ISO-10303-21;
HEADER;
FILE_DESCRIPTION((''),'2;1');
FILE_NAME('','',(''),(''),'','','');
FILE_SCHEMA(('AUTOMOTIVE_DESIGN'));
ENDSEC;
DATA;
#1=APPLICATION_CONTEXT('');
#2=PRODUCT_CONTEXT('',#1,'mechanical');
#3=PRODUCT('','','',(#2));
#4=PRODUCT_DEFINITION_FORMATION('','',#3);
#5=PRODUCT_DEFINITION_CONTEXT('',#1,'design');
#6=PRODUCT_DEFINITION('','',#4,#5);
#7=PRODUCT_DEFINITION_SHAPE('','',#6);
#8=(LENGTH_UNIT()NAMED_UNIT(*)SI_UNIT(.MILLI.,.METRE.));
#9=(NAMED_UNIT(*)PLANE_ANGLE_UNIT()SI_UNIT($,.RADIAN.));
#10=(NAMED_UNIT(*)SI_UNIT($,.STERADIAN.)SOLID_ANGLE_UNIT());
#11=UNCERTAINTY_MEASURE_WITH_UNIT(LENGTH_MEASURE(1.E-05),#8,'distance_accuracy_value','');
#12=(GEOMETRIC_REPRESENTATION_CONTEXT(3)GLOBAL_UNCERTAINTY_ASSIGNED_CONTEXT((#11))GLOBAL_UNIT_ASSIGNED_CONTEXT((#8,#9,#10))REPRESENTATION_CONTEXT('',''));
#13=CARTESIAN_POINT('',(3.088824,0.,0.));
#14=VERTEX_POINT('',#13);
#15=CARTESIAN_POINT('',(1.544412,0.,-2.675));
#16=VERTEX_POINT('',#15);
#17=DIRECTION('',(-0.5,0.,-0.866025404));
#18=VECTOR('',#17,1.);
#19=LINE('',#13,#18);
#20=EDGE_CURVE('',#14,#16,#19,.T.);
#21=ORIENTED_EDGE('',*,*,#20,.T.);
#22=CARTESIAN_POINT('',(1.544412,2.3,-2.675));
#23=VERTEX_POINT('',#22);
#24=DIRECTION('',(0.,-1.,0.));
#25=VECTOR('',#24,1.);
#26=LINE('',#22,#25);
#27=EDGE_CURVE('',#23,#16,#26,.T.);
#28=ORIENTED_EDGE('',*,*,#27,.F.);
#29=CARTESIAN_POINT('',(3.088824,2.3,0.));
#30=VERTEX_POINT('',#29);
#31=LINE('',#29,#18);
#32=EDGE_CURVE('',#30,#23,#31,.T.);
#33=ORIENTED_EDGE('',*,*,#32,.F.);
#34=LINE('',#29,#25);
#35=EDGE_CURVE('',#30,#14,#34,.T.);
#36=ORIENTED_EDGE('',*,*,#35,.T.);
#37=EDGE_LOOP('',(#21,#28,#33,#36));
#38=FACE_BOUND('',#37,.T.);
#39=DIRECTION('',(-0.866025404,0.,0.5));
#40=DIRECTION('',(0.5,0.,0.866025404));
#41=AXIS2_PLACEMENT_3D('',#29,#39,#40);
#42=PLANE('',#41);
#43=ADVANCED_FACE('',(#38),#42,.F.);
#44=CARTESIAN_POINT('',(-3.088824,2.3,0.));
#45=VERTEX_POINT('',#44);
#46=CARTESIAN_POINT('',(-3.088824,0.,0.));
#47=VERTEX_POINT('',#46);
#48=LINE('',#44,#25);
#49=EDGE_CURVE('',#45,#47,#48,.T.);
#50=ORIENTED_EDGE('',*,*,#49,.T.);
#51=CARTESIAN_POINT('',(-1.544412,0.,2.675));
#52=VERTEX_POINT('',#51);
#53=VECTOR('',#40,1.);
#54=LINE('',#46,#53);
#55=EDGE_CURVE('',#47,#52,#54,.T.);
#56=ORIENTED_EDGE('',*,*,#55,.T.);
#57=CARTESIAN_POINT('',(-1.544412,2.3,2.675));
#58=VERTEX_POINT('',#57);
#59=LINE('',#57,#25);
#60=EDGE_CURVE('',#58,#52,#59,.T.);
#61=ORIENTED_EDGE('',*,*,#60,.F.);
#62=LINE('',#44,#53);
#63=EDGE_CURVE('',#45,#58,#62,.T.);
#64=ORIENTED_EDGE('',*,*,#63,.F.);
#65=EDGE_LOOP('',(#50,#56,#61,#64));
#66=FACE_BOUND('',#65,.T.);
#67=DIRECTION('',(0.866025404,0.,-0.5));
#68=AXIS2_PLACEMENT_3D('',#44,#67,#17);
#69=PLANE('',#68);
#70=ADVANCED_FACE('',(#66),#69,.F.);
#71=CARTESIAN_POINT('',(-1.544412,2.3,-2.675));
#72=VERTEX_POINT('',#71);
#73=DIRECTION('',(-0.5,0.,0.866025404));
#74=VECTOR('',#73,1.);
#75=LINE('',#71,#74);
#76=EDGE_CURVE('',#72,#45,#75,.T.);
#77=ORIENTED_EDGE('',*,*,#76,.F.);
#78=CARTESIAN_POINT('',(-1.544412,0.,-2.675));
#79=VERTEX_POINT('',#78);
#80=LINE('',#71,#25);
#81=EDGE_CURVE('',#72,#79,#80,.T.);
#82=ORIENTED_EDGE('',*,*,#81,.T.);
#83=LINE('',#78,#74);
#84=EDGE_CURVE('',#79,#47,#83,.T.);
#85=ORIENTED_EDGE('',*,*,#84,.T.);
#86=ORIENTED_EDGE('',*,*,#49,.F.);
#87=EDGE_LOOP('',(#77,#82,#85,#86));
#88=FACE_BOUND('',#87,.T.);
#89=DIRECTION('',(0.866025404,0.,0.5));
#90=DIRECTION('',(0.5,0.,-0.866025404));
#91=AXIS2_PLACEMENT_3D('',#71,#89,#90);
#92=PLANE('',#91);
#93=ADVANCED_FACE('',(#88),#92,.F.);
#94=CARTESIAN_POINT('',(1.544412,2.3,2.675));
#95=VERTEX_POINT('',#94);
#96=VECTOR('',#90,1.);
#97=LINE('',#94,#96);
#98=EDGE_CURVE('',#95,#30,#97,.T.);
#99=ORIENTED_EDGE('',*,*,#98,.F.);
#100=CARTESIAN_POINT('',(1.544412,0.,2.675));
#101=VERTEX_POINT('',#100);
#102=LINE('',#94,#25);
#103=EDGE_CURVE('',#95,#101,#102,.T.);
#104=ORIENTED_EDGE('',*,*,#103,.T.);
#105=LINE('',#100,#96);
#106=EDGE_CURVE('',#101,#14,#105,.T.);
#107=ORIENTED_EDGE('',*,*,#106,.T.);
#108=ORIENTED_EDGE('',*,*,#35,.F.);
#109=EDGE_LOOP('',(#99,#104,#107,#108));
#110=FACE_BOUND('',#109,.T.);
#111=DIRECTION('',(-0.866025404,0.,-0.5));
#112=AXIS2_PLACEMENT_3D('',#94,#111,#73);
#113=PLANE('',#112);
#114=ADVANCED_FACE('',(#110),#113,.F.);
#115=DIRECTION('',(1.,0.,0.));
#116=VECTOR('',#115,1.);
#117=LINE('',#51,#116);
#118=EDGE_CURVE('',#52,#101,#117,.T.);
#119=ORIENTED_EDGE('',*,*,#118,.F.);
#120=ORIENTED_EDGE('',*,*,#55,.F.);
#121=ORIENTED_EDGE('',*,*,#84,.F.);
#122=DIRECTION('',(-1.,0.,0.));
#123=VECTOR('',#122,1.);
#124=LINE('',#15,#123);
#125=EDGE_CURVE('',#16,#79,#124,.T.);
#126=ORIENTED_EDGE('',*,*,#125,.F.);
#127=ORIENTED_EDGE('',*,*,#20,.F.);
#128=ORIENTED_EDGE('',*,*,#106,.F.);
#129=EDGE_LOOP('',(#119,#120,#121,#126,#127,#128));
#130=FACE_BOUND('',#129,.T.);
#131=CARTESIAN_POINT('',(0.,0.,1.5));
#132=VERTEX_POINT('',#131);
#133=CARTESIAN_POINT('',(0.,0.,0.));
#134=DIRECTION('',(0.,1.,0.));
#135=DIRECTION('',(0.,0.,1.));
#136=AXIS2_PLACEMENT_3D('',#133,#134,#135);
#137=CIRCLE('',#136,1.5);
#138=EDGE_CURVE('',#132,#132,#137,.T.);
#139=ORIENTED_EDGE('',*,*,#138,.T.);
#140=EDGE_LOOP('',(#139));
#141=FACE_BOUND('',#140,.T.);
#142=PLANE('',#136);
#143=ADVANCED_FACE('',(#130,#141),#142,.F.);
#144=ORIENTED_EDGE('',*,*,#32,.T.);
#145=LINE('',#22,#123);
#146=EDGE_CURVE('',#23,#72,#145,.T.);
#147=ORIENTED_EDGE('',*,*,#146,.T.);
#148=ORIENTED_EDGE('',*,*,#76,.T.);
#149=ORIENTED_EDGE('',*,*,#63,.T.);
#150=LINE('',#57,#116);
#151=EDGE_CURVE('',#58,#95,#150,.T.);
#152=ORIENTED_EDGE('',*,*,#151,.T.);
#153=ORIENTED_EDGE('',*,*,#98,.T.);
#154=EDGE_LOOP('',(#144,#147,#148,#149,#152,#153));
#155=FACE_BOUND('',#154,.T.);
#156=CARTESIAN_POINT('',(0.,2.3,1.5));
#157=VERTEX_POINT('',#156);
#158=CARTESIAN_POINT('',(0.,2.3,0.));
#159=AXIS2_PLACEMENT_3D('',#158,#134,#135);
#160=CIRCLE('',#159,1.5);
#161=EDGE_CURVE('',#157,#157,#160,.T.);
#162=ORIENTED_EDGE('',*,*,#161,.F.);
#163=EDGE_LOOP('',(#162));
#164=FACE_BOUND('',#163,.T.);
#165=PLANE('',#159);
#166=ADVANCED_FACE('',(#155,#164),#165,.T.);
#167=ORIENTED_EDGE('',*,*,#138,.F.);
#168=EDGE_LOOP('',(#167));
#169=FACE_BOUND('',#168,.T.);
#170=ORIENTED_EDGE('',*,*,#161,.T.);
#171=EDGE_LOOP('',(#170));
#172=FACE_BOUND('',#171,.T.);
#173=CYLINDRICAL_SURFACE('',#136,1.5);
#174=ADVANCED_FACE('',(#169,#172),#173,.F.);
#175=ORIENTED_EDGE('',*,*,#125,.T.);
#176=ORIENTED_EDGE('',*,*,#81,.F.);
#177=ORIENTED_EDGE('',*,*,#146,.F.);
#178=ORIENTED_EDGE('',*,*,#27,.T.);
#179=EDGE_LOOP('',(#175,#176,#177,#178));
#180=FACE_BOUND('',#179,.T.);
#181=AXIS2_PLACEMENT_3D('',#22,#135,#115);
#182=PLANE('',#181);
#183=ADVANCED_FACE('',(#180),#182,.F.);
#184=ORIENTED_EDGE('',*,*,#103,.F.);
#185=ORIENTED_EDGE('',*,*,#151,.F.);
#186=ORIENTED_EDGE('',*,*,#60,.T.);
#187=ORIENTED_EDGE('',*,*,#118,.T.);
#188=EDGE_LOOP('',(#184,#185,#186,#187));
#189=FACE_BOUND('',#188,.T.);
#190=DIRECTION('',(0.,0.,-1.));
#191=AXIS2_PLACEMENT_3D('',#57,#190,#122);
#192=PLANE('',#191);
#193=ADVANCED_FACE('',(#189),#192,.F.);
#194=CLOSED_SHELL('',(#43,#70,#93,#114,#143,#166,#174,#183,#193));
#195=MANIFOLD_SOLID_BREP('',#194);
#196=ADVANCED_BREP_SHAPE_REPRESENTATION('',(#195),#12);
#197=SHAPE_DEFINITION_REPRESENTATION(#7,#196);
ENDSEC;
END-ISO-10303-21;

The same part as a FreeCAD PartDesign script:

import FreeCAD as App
import Part
import Sketcher

V = App.Vector
Q = App.Units.Quantity

doc = App.newDocument("Part")
body = doc.addObject("PartDesign::Body", "Body")

sketch1 = body.newObject("Sketcher::SketchObject", "Sketch")
sketch1.AttachmentSupport = (doc.getObject("XZ_Plane"), [""])
sketch1.MapMode = "FlatFace"
sketch1.addGeometry([
    Part.LineSegment(V(3.1, 0, 0), V(1.5, -2.7, 0)),
    Part.LineSegment(V(1.5, -2.7, 0), V(-1.5, -2.7, 0)),
    Part.LineSegment(V(-1.5, -2.7, 0), V(-3.1, 0, 0)),
    Part.LineSegment(V(-3.1, 0, 0), V(-1.5, 2.7, 0)),
    Part.LineSegment(V(-1.5, 2.7, 0), V(1.5, 2.7, 0)),
    Part.LineSegment(V(1.5, 2.7, 0), V(3.1, 0, 0)),
], False)
sketch1.addConstraint([
    Sketcher.Constraint("Coincident", 0, 2, 1, 1),
    Sketcher.Constraint("Coincident", 1, 2, 2, 1),
    Sketcher.Constraint("Coincident", 2, 2, 3, 1),
    Sketcher.Constraint("Coincident", 3, 2, 4, 1),
    Sketcher.Constraint("Coincident", 4, 2, 5, 1),
    Sketcher.Constraint("Coincident", 5, 2, 0, 1),
    Sketcher.Constraint("Horizontal", 1),
    Sketcher.Constraint("Horizontal", 4),
    Sketcher.Constraint("Symmetric", 0, 2, 3, 2, -1, 1),
    Sketcher.Constraint("Symmetric", 2, 2, 5, 2, -1, 1),
    Sketcher.Constraint("PointOnObject", 2, 2, -1),
    Sketcher.Constraint("Parallel", 2, 5),
    Sketcher.Constraint("Vertical", 1, 2, 3, 2),
    Sketcher.Constraint("Angle", 0, Q("-120 deg")),
    Sketcher.Constraint("DistanceY", 1, 2, 3, 2, Q("5.35 mm")),
    Sketcher.Constraint("DistanceX", 1, 2, 1, 1, Q("3.088824 mm")),
])
pad1 = body.newObject("PartDesign::Pad", "Pad")
pad1.Profile = sketch1
pad1.Length = 2.3
pad1.Reversed = True

sketch2 = body.newObject("Sketcher::SketchObject", "Sketch001")
sketch2.AttachmentSupport = (doc.getObject("XZ_Plane"), [""])
sketch2.MapMode = "FlatFace"
sketch2.AttachmentOffset = App.Placement(V(0, 0, -2.3), App.Rotation())
sketch2.addGeometry(Part.Circle(V(0, 0, 0), V(0, 0, 1), 1.5), False)
sketch2.addConstraint([
    Sketcher.Constraint("Coincident", 0, 3, -1, 1),
    Sketcher.Constraint("Diameter", 0, Q("3 mm")),
])
pocket1 = body.newObject("PartDesign::Pocket", "Pocket")
pocket1.Profile = sketch2
pocket1.Type = "ThroughAll"
pocket1.Reversed = True

doc.recompute()
